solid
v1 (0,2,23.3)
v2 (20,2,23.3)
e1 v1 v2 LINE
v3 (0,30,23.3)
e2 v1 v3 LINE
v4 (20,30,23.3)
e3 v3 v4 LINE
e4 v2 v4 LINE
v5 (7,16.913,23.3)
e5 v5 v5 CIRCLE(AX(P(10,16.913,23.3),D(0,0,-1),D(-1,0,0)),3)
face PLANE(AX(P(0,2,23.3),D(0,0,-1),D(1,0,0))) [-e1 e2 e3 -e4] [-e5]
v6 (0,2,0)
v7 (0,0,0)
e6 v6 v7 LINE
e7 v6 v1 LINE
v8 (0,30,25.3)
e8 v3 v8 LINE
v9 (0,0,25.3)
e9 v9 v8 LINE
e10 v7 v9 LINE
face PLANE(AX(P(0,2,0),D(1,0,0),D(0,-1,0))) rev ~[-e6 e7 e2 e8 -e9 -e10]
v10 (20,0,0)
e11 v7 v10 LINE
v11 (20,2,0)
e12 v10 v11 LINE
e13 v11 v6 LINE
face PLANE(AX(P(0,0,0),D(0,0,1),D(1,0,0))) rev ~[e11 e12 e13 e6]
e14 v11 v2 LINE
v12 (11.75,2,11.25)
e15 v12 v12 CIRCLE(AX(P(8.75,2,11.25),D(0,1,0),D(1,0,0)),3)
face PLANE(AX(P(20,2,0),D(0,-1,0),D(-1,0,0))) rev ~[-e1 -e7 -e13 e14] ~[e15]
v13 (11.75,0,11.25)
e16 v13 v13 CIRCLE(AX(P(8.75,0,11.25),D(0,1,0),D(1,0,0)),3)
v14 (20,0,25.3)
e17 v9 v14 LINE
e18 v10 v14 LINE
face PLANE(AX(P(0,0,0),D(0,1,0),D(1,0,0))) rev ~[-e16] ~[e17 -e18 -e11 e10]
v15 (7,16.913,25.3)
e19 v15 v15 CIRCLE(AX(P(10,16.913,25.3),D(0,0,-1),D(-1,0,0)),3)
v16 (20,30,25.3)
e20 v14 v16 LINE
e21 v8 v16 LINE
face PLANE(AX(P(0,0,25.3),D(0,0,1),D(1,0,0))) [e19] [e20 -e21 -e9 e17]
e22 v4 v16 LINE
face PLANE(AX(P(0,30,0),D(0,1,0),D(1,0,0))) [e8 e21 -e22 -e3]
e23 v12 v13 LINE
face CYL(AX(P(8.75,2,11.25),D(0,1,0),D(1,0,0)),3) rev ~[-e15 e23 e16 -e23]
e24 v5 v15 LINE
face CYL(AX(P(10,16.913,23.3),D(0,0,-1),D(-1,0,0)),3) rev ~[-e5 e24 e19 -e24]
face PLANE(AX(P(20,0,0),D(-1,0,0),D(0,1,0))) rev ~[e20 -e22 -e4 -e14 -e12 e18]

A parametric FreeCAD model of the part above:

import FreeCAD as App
import Part
import Sketcher
Q = App.Units.Quantity


def add_polygon(sketch, points):
    """Adds a closed chain of lines whose ends are joined by coincident constraints."""
    first, n = sketch.GeometryCount, len(points)
    for a, b in zip(points, points[1:] + points[:1]):
        sketch.addGeometry(Part.LineSegment(App.Vector(*a, 0), App.Vector(*b, 0)), False)
    for i in range(n):
        sketch.addConstraint(Sketcher.Constraint("Coincident", first + i, 2, first + (i + 1) % n, 1))

doc = App.newDocument("Part")
body = doc.addObject("PartDesign::Body", "Body")

# Sketch on XY plane
sketch1 = body.newObject("Sketcher::SketchObject", "Sketch")
sketch1.AttachmentSupport = (doc.getObject("XY_Plane"), [""])
sketch1.MapMode = "FlatFace"
add_polygon(sketch1, [(0, 2), (0, 0), (20, 0), (20, 2)])  # lines 0-3
sketch1.addConstraint(Sketcher.Constraint("Vertical", 0))
sketch1.addConstraint(Sketcher.Constraint("Horizontal", 1))
sketch1.addConstraint(Sketcher.Constraint("Vertical", 2))
sketch1.addConstraint(Sketcher.Constraint("Horizontal", 3))
sketch1.addConstraint(Sketcher.Constraint("Coincident", 0, 2, -1, 1))
sketch1.addConstraint(Sketcher.Constraint("DistanceX", 1, 1, 1, 2, Q("20 mm")))
sketch1.addConstraint(Sketcher.Constraint("DistanceY", 0, 2, 0, 1, Q("2 mm")))
pad1 = body.newObject("PartDesign::Pad", "Pad")
pad1.Profile = sketch1
pad1.Length = 25.3

# Sketch on XZ plane
sketch2 = body.newObject("Sketcher::SketchObject", "Sketch001")
sketch2.AttachmentSupport = (doc.getObject("XZ_Plane"), [""])
sketch2.MapMode = "FlatFace"
sketch2.AttachmentOffset = App.Placement(App.Vector(0, 0, -2), App.Rotation())
add_polygon(sketch2, [(0, 23.3), (0, 25.3), (20, 25.3), (20, 23.3)])  # lines 0-3
sketch2.addConstraint(Sketcher.Constraint("Vertical", 0))
sketch2.addConstraint(Sketcher.Constraint("Horizontal", 1))
sketch2.addConstraint(Sketcher.Constraint("Vertical", 2))
sketch2.addConstraint(Sketcher.Constraint("Horizontal", 3))
sketch2.addConstraint(Sketcher.Constraint("PointOnObject", 0, 2, -2))
sketch2.addConstraint(Sketcher.Constraint("DistanceY", 0, 1, 0, 2, Q("2 mm")))
sketch2.addConstraint(Sketcher.Constraint("DistanceX", 1, 1, 1, 2, Q("20 mm")))
sketch2.addConstraint(Sketcher.Constraint("DistanceY", -1, 1, 0, 2, Q("25.3 mm")))
pad2 = body.newObject("PartDesign::Pad", "Pad001")
pad2.Profile = sketch2
pad2.Length = 28
pad2.Reversed = True

# Sketch on XZ plane
sketch3 = body.newObject("Sketcher::SketchObject", "Sketch002")
sketch3.AttachmentSupport = (doc.getObject("XZ_Plane"), [""])
sketch3.MapMode = "FlatFace"
sketch3.AttachmentOffset = App.Placement(App.Vector(0, 0, -2), App.Rotation())
sketch3.addGeometry(Part.Circle(App.Vector(8.8, 11.2, 0), App.Vector(0, 0, 1), 3), False)
sketch3.addConstraint(Sketcher.Constraint("Diameter", 0, Q("6 mm")))
sketch3.addConstraint(Sketcher.Constraint("DistanceX", -1, 1, 0, 3, Q("8.75 mm")))
sketch3.addConstraint(Sketcher.Constraint("DistanceY", -1, 1, 0, 3, Q("11.25 mm")))
pocket1 = body.newObject("PartDesign::Pocket", "Pocket")
pocket1.Profile = sketch3
pocket1.Length = 28
pocket1.Reversed = True

# Sketch on XY plane
sketch4 = body.newObject("Sketcher::SketchObject", "Sketch003")
sketch4.AttachmentSupport = (doc.getObject("XY_Plane"), [""])
sketch4.MapMode = "FlatFace"
sketch4.AttachmentOffset = App.Placement(App.Vector(0, 0, 23.3), App.Rotation())
sketch4.addGeometry(Part.Circle(App.Vector(10, 16.9, 0), App.Vector(0, 0, 1), 3), False)
sketch4.addConstraint(Sketcher.Constraint("Diameter", 0, Q("6 mm")))
sketch4.addConstraint(Sketcher.Constraint("DistanceX", -1, 1, 0, 3, Q("10 mm")))
sketch4.addConstraint(Sketcher.Constraint("DistanceY", -1, 1, 0, 3, Q("16.913 mm")))
pocket2 = body.newObject("PartDesign::Pocket", "Pocket001")
pocket2.Profile = sketch4
pocket2.Length = 28
pocket2.Reversed = True

doc.recompute()
